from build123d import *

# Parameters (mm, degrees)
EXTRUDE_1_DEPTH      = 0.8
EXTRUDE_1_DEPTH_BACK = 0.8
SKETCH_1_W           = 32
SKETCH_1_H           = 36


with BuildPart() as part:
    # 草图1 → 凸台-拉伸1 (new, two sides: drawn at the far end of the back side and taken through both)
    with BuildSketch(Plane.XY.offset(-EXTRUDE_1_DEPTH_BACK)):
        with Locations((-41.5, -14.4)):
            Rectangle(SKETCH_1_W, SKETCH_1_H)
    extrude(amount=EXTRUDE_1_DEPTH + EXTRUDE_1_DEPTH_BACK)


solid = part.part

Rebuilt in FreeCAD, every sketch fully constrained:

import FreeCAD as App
import Part
import Sketcher

doc = App.newDocument("Part")
body = doc.addObject("PartDesign::Body", "Body")

sketch1 = doc.addObject("Sketcher::SketchObject", "Sketch")
body.addObject(sketch1)
sketch1.AttachmentSupport = (doc.XY_Plane, [""])
sketch1.MapMode = "FlatFace"
sketch1.addGeometry(Part.LineSegment(App.Vector(-58, 4, 0), App.Vector(-58, -32, 0)), False)
sketch1.addGeometry(Part.LineSegment(App.Vector(-58, -32, 0), App.Vector(-26, -32, 0)), False)
sketch1.addGeometry(Part.LineSegment(App.Vector(-26, -32, 0), App.Vector(-26, 4, 0)), False)
sketch1.addGeometry(Part.LineSegment(App.Vector(-26, 4, 0), App.Vector(-58, 4, 0)), False)
sketch1.addConstraint(Sketcher.Constraint("Coincident", 0, 2, 1, 1))
sketch1.addConstraint(Sketcher.Constraint("Coincident", 1, 2, 2, 1))
sketch1.addConstraint(Sketcher.Constraint("Coincident", 2, 2, 3, 1))
sketch1.addConstraint(Sketcher.Constraint("Coincident", 3, 2, 0, 1))
sketch1.addConstraint(Sketcher.Constraint("Vertical", 0))
sketch1.addConstraint(Sketcher.Constraint("Horizontal", 1))
sketch1.addConstraint(Sketcher.Constraint("Vertical", 2))
sketch1.addConstraint(Sketcher.Constraint("Horizontal", 3))
sketch1.addConstraint(Sketcher.Constraint("DistanceX", 1, 1, 1, 2, 32.0))
sketch1.addConstraint(Sketcher.Constraint("DistanceY", 0, 2, 0, 1, 36.0))
sketch1.addConstraint(Sketcher.Constraint("DistanceX", 0, 2, -1, 1, 57.5))
sketch1.addConstraint(Sketcher.Constraint("DistanceY", 0, 2, -1, 1, 32.4))
pad1 = doc.addObject("PartDesign::Pad", "Pad")
body.addObject(pad1)
pad1.Profile = sketch1
pad1.Type = "TwoLengths"
pad1.Length = 0.8
pad1.Length2 = 0.8

doc.recompute()
